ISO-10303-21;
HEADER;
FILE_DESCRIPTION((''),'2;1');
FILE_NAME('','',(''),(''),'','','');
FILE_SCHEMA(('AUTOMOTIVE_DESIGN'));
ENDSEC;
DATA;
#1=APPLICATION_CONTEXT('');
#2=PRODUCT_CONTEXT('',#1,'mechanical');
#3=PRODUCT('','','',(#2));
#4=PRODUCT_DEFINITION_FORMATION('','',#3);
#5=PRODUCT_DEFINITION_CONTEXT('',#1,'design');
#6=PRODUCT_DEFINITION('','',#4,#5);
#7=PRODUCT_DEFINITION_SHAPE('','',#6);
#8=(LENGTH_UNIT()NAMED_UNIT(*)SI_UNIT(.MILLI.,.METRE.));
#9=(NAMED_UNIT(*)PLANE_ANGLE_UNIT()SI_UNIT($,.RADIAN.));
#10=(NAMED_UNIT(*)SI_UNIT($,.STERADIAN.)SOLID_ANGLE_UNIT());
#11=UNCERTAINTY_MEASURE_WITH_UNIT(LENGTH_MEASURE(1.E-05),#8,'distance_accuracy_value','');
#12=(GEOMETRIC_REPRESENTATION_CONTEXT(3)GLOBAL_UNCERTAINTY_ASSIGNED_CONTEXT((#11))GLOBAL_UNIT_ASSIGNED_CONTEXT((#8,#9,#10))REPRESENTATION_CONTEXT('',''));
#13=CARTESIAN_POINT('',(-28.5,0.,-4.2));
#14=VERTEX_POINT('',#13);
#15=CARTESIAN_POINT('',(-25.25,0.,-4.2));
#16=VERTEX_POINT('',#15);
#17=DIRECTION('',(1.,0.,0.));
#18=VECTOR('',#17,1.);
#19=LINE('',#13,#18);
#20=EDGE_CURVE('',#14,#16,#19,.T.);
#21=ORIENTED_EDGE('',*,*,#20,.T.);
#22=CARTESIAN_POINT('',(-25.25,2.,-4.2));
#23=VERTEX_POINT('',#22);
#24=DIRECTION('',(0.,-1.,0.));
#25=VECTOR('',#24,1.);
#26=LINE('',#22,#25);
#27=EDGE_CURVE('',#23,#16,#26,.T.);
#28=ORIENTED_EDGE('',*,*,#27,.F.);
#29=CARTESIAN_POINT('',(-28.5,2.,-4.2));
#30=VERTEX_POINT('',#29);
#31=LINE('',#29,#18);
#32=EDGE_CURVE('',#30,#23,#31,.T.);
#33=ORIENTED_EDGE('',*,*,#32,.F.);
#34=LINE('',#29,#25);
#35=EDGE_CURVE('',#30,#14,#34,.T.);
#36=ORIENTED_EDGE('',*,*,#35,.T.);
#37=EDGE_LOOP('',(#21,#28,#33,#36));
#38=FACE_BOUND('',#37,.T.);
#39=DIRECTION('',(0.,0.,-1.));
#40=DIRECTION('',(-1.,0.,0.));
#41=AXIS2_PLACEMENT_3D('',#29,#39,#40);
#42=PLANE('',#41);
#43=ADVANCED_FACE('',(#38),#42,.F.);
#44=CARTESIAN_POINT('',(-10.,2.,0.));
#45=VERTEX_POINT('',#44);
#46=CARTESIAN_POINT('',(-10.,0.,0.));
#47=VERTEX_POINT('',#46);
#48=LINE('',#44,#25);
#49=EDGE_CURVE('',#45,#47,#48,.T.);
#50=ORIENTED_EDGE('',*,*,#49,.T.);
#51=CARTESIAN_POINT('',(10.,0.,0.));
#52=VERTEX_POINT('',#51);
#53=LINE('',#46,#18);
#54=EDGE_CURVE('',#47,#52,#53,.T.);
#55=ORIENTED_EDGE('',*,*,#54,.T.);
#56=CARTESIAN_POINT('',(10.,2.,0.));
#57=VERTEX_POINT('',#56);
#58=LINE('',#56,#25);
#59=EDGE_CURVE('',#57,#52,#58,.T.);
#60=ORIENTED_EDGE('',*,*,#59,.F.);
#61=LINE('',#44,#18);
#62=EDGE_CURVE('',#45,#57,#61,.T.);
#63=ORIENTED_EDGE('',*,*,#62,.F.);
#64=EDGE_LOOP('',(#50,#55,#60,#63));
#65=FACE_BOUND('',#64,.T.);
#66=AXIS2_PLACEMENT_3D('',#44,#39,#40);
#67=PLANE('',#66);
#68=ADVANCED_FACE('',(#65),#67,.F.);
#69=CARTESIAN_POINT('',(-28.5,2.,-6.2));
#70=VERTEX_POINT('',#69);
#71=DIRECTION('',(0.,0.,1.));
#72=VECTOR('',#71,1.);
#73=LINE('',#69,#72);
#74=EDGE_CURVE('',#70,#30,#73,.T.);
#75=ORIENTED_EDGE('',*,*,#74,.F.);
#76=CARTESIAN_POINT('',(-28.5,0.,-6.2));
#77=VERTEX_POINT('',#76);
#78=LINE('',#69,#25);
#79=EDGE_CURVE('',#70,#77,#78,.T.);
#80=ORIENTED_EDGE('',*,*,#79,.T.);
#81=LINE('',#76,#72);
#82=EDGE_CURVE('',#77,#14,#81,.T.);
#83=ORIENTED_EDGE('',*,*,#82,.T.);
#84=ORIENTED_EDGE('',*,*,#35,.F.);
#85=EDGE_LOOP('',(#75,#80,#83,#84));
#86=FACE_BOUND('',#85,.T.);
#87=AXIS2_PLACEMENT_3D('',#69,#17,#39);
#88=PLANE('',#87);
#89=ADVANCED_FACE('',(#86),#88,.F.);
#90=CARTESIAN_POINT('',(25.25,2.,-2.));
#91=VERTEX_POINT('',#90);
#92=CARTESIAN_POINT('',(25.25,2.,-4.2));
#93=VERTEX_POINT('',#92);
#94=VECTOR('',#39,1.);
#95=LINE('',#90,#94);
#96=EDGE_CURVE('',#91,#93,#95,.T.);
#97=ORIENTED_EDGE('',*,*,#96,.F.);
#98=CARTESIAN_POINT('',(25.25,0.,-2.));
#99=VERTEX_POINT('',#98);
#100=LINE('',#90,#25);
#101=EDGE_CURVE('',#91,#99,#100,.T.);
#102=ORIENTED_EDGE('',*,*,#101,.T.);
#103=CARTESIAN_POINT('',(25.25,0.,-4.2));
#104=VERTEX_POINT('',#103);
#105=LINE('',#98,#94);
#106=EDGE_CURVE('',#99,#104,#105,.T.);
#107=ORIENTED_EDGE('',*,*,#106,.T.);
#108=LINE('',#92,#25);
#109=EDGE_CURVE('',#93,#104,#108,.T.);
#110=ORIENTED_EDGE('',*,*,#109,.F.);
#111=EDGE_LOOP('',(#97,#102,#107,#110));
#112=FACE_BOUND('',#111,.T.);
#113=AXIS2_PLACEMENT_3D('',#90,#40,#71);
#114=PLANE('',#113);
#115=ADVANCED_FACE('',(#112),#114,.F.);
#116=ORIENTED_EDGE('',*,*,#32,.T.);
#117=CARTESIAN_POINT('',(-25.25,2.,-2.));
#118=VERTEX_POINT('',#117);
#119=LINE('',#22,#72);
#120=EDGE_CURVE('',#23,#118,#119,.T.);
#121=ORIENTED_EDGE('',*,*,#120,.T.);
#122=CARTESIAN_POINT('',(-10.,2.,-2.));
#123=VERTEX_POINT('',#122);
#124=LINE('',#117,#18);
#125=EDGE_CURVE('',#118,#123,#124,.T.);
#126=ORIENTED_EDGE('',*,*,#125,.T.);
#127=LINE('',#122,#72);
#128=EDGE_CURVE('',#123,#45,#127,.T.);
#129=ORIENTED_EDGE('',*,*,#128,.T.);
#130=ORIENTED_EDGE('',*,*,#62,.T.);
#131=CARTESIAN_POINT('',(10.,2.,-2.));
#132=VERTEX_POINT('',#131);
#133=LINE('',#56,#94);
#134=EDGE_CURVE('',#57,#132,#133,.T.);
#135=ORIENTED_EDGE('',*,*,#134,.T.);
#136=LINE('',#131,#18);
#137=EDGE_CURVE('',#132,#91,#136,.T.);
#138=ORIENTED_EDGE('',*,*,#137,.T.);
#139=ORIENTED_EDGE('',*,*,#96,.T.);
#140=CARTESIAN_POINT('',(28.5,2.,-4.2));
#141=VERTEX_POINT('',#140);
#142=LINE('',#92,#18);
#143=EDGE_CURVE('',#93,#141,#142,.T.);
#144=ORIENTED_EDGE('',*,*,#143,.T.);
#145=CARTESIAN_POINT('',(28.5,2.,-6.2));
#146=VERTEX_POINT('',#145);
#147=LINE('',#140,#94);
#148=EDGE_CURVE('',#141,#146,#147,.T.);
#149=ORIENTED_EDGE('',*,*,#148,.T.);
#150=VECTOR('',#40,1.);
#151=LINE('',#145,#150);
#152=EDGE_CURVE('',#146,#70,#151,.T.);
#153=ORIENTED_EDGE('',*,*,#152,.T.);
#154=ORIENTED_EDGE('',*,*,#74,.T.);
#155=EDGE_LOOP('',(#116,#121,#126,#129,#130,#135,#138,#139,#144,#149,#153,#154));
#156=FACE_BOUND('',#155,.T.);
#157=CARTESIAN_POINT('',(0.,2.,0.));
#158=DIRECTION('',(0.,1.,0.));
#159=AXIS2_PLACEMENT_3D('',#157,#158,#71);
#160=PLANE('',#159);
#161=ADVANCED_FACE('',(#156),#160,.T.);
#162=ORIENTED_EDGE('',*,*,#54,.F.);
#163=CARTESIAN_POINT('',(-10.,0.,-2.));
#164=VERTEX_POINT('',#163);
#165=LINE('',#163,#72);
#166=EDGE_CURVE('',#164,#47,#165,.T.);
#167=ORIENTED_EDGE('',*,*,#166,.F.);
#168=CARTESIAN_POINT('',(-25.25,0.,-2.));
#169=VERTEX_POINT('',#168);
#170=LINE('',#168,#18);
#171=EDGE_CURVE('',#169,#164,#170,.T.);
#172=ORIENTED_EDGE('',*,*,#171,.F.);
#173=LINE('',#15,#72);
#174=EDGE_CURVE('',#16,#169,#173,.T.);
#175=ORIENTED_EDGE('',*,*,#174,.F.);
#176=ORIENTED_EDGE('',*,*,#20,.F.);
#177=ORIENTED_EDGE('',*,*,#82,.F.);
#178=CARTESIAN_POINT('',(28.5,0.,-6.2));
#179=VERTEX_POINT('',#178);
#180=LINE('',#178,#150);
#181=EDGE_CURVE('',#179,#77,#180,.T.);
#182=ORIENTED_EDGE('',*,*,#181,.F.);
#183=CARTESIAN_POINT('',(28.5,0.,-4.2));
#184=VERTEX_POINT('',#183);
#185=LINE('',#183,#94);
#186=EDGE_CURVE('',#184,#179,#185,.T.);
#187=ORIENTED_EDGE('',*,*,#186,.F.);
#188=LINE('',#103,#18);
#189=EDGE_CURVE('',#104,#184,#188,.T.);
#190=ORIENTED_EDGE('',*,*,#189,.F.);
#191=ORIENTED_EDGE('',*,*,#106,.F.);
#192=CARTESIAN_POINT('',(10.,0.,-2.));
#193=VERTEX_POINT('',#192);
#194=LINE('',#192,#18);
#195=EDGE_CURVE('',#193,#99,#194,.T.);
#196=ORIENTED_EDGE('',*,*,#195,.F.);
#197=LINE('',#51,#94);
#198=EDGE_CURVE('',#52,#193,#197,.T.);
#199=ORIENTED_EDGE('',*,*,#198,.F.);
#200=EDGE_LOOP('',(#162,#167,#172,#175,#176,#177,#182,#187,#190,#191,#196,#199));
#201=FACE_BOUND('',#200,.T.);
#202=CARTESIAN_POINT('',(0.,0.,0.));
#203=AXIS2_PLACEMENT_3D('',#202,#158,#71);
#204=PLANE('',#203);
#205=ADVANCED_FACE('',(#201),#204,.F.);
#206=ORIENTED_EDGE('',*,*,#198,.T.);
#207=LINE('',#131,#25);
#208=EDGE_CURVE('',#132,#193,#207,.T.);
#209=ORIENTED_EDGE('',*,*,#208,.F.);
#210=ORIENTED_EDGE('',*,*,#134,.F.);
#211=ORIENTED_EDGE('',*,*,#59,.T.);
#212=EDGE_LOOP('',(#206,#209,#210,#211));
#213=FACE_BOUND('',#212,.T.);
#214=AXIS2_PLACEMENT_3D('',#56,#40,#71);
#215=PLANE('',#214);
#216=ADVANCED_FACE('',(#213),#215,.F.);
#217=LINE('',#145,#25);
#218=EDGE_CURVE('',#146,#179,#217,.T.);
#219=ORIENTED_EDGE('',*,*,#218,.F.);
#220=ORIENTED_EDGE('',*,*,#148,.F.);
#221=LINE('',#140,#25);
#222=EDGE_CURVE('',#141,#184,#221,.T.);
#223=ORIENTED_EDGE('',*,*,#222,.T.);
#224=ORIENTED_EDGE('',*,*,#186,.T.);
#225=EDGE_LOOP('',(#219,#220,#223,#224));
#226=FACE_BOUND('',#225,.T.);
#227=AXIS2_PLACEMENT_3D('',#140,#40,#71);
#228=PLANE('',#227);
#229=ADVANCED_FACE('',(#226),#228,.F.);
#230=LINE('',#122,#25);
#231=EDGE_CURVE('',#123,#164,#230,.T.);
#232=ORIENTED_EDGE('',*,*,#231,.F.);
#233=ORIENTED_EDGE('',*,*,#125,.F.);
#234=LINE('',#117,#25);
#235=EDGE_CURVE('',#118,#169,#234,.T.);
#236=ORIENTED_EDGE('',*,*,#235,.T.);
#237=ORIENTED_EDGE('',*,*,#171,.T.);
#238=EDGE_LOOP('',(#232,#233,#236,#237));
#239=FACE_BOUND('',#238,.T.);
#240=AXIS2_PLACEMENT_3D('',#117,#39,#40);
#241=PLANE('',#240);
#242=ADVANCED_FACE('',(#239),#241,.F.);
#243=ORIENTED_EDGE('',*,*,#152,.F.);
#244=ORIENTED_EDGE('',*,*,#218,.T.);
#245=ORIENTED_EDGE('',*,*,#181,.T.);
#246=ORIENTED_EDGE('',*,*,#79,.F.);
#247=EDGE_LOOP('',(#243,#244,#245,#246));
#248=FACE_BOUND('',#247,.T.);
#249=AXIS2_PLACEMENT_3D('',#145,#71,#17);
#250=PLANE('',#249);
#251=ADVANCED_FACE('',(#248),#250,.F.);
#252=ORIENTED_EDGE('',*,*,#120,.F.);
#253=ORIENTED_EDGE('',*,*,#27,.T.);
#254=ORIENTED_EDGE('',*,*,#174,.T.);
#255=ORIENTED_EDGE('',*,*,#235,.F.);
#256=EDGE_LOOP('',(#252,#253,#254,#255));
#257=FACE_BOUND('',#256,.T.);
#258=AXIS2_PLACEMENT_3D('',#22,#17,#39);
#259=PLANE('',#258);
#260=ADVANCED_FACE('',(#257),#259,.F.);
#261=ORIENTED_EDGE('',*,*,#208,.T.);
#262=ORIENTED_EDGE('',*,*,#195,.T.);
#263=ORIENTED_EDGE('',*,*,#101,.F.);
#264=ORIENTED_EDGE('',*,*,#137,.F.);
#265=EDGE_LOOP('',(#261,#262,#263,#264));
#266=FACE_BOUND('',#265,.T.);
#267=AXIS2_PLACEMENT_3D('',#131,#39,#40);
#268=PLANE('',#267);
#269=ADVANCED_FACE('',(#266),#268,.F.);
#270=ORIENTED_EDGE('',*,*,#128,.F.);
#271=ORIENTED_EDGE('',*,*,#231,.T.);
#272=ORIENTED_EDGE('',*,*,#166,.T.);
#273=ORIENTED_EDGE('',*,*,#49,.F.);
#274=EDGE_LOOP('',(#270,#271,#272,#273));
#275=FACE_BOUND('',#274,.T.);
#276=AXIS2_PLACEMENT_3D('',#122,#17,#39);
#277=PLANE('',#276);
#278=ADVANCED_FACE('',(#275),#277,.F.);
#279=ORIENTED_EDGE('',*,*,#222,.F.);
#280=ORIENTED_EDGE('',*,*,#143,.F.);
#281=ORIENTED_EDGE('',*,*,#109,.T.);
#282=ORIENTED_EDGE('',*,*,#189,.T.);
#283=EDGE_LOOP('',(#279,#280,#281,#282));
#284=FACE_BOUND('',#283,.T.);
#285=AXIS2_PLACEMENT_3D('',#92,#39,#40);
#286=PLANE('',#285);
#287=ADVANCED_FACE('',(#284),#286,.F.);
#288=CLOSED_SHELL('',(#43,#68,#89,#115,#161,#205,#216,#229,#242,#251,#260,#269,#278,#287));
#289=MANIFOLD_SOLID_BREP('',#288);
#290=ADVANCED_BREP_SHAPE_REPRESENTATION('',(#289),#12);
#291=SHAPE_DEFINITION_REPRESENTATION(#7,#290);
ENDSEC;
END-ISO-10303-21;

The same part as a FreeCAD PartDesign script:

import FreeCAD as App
import Part
import Sketcher
from FreeCAD import Vector
Q = App.Units.Quantity


def add_polygon(sketch, points):
    """Adds a closed chain of lines whose ends are joined by coincident constraints."""
    first, n = sketch.GeometryCount, len(points)
    for a, b in zip(points, points[1:] + points[:1]):
        sketch.addGeometry(Part.LineSegment(App.Vector(*a, 0), App.Vector(*b, 0)), False)
    for i in range(n):
        sketch.addConstraint(Sketcher.Constraint("Coincident", first + i, 2, first + (i + 1) % n, 1))

doc = App.newDocument("Part")
body = doc.addObject("PartDesign::Body", "Body")

# Sketch on XZ plane
sketch1 = body.newObject("Sketcher::SketchObject", "Sketch")
sketch1.AttachmentSupport = (doc.getObject("XZ_Plane"), [""])
sketch1.MapMode = "FlatFace"
add_polygon(sketch1, [(-25.2, -2), (-10, -2), (-10, 0), (10, 0), (10, -2), (25.2, -2), (25.2, -4.2), (28.5, -4.2), (28.5, -6.2), (-28.5, -6.2), (-28.5, -4.2), (-25.2, -4.2)])  # lines 0-11
sketch1.addConstraint([
    Sketcher.Constraint("Horizontal", 0),
    Sketcher.Constraint("Vertical", 1),
    Sketcher.Constraint("Horizontal", 2),
    Sketcher.Constraint("Vertical", 3),
    Sketcher.Constraint("Horizontal", 4),
    Sketcher.Constraint("Vertical", 5),
    Sketcher.Constraint("Horizontal", 6),
    Sketcher.Constraint("Vertical", 7),
    Sketcher.Constraint("Horizontal", 8),
    Sketcher.Constraint("Vertical", 9),
    Sketcher.Constraint("Horizontal", 10),
    Sketcher.Constraint("Vertical", 11),
    Sketcher.Constraint("Symmetric", 1, 2, 2, 2, -1, 1),
    Sketcher.Constraint("Symmetric", 6, 2, 9, 2, -2),
    Sketcher.Constraint("Symmetric", 4, 2, 11, 2, -2),
    Sketcher.Constraint("Equal", 3, 7),
    Sketcher.Constraint("DistanceX", 2, 1, 2, 2, Q("20 mm")),
    Sketcher.Constraint("DistanceX", 8, 2, 8, 1, Q("57 mm")),
    Sketcher.Constraint("DistanceY", 1, 1, 1, 2, Q("2 mm")),
    Sketcher.Constraint("DistanceY", 5, 2, 5, 1, Q("2.2 mm")),
    Sketcher.Constraint("DistanceX", 0, 1, 0, 2, Q("15.25 mm")),
])
pad1 = body.newObject("PartDesign::Pad", "Pad")
pad1.Profile = sketch1
pad1.Length = 2
pad1.Reversed = True

doc.recompute()
